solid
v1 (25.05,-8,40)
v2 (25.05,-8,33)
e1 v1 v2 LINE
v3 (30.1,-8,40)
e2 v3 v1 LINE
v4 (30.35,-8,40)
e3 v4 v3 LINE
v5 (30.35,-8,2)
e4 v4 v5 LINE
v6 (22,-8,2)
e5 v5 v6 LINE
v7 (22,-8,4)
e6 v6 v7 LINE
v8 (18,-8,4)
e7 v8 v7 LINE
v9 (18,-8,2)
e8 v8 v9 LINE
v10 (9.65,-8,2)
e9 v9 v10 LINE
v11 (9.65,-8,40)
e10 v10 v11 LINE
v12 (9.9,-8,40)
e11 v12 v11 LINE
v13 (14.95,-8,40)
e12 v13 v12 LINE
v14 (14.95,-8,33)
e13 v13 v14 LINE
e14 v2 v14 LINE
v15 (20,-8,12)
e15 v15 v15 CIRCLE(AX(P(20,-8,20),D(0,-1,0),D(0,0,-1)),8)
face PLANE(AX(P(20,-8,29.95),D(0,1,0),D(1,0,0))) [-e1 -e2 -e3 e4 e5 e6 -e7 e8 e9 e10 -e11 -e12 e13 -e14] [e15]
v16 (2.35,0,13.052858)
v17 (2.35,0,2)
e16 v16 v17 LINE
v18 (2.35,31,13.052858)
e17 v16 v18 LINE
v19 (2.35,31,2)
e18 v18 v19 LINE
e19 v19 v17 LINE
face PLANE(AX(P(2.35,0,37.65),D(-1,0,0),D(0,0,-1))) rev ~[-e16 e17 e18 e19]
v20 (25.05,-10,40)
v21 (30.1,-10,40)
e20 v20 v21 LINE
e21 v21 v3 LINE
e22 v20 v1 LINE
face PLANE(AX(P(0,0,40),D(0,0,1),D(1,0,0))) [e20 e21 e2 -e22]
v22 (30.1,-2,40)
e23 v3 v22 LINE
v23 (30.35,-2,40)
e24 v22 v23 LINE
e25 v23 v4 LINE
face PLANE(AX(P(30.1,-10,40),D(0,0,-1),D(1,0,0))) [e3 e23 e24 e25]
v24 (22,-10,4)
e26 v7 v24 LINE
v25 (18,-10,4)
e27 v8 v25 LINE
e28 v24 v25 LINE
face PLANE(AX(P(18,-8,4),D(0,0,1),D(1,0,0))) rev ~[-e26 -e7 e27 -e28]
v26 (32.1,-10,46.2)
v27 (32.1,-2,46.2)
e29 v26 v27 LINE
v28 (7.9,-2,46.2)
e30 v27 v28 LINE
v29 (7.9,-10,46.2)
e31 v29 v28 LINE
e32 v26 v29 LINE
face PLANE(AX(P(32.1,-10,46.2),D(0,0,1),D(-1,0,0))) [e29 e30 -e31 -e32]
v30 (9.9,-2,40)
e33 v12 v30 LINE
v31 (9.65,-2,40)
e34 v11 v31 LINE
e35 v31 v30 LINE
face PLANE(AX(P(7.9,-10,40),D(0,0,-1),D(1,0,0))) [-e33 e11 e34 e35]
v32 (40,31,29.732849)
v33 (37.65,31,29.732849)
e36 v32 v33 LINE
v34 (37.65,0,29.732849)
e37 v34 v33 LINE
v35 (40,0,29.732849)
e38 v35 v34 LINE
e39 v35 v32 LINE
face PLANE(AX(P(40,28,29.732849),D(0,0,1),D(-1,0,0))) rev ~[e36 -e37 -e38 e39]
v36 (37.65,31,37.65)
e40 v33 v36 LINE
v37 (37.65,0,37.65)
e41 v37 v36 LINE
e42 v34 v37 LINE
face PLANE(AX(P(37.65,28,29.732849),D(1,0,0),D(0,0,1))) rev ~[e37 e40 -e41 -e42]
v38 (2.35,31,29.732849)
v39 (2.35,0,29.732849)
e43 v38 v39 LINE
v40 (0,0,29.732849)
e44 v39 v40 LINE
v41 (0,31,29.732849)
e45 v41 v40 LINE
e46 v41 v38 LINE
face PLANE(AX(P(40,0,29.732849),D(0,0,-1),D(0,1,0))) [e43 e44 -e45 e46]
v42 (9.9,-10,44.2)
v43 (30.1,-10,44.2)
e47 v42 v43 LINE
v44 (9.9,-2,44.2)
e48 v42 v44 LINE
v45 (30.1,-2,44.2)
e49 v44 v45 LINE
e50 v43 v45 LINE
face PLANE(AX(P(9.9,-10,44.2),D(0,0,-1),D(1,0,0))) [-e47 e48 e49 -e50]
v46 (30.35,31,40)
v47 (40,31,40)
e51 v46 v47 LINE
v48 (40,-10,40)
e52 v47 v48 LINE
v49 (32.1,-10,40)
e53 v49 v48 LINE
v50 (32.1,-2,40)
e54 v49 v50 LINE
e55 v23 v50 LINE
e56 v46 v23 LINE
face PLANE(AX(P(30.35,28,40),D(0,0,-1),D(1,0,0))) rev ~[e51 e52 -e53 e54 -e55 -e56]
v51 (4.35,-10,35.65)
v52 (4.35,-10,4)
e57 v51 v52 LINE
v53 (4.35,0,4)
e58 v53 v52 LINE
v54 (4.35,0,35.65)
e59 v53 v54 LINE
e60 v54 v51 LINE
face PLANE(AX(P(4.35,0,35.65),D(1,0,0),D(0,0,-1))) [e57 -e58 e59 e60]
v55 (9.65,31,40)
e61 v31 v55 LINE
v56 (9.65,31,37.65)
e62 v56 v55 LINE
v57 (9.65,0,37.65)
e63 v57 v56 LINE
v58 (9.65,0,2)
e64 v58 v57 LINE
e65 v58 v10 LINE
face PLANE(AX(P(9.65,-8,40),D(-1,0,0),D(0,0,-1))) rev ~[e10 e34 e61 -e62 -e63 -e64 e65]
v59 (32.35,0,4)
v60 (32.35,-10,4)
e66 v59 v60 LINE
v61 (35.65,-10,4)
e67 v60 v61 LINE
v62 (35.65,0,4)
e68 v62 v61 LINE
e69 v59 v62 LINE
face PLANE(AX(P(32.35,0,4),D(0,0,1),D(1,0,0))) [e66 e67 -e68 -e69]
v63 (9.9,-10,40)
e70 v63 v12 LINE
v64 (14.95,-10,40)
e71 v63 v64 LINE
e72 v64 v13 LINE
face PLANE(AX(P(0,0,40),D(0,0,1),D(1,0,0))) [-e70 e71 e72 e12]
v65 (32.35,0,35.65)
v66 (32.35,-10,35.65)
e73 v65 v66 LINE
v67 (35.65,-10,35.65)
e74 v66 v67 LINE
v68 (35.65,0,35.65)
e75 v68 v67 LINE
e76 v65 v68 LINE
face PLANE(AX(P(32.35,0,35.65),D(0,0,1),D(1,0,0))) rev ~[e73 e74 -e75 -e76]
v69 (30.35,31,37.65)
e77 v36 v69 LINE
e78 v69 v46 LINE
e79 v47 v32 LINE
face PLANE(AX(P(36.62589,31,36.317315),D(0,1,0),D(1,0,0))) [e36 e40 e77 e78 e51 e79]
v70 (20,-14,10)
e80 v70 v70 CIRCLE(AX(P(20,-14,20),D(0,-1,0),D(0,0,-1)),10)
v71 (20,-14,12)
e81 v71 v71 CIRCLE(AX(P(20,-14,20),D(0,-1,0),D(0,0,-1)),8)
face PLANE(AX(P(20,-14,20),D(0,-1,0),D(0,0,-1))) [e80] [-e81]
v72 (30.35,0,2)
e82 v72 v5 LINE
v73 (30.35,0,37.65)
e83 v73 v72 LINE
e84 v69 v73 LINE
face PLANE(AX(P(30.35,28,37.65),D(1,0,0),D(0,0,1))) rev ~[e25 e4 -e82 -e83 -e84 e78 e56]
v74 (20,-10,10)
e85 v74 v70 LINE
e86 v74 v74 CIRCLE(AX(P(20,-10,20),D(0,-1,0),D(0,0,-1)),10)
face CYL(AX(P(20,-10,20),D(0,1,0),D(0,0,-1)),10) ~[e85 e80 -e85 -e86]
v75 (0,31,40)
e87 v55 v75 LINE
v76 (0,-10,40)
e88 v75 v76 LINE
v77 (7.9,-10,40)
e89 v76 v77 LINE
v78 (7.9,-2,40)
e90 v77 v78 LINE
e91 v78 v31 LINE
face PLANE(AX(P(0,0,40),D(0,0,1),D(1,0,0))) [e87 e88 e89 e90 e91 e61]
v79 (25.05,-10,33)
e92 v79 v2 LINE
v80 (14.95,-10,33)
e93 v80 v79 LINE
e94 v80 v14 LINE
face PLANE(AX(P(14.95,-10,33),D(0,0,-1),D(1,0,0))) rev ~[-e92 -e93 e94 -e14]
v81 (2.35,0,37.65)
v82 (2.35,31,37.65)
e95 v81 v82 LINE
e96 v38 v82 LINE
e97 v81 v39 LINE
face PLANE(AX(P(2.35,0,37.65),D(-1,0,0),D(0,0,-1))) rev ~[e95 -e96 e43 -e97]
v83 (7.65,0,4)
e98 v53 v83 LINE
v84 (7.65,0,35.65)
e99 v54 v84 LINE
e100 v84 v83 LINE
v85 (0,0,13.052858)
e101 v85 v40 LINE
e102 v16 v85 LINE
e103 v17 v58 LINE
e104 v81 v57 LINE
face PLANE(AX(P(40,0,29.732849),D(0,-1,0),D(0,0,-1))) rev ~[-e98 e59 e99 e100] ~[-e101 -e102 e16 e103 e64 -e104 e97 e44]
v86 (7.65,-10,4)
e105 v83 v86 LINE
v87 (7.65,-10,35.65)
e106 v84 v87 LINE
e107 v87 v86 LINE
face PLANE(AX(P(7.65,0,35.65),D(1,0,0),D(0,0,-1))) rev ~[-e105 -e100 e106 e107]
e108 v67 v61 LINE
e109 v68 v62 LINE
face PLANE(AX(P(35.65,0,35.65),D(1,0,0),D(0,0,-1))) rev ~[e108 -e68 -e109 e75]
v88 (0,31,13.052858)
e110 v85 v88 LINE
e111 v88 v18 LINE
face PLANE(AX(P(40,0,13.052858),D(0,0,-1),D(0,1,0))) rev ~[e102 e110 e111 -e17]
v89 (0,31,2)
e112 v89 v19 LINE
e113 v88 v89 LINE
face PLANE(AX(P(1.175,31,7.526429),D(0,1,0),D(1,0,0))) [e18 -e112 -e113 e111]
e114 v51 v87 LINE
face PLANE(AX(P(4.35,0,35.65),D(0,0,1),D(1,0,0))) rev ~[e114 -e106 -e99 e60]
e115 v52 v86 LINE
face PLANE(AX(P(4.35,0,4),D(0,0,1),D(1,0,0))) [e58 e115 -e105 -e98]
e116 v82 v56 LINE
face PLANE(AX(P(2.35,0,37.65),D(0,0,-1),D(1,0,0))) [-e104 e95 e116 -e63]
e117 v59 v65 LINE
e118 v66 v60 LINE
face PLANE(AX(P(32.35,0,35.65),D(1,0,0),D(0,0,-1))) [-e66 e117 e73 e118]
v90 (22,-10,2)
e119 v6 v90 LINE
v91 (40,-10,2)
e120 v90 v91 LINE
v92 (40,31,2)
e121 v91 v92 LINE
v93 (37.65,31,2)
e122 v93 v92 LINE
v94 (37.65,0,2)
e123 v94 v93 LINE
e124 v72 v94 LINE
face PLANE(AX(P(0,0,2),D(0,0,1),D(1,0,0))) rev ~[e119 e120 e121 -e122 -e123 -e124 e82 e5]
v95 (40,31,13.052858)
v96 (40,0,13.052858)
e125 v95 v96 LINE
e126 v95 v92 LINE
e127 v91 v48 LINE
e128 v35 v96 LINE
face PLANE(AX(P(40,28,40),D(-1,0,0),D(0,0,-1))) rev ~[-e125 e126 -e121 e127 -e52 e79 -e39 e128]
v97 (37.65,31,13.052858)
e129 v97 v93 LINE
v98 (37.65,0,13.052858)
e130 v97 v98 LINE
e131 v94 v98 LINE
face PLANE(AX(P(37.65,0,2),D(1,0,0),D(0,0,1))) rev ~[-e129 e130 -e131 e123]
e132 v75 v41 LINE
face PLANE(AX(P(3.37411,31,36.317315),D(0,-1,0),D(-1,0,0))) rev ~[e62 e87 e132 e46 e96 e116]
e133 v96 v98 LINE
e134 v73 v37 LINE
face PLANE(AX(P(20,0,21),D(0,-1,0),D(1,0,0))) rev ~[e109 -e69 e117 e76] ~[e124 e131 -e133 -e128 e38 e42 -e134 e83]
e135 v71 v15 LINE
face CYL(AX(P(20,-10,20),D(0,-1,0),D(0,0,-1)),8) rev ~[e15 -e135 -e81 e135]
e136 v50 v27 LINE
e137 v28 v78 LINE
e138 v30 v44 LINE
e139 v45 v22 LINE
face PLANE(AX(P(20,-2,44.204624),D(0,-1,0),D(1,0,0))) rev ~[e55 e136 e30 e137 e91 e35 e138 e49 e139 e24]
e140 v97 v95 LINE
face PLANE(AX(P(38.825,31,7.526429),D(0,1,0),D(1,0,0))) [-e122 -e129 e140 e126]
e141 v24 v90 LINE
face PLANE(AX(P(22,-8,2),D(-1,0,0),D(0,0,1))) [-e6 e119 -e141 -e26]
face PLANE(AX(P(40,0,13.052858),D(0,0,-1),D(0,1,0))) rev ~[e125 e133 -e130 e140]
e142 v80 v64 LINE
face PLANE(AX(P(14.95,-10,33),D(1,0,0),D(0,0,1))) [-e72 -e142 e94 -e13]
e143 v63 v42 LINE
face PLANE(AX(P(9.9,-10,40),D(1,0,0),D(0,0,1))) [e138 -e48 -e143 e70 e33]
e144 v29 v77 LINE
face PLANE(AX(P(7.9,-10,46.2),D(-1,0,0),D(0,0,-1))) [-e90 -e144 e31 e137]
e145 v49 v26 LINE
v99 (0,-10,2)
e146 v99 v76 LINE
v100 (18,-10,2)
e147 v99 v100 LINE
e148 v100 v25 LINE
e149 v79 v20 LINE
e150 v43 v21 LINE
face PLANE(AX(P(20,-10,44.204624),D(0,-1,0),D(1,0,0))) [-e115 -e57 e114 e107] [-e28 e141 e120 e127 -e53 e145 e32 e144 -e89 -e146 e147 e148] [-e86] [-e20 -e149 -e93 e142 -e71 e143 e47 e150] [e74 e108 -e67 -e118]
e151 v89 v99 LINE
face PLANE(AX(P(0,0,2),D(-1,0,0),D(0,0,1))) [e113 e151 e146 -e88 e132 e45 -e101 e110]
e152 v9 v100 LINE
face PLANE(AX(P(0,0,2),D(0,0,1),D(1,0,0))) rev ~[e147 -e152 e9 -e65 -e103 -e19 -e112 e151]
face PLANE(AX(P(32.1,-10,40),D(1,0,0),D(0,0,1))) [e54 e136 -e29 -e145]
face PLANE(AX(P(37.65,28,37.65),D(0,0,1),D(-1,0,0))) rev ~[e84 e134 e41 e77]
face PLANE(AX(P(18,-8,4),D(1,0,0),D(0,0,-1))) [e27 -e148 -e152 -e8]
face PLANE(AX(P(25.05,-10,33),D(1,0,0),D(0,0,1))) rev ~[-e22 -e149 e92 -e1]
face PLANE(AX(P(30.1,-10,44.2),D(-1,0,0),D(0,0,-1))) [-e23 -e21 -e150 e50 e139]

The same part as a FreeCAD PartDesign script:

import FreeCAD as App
import Part
import Sketcher
from FreeCAD import Vector
Q = App.Units.Quantity

doc = App.newDocument("Part")
body = doc.addObject("PartDesign::Body", "Body")

# Sketch on XZ plane
sketch1 = doc.addObject("Sketcher::SketchObject", "Sketch")
body.addObject(sketch1)
sketch1.AttachmentSupport = (doc.XZ_Plane, [""])
sketch1.MapMode = "FlatFace"
sketch1.addGeometry([
    Part.LineSegment(Vector(40, 40, 0), Vector(40, 2, 0)),  # 0
    Part.LineSegment(Vector(40, 2, 0), Vector(37.6, 2, 0)),  # 1
    Part.LineSegment(Vector(37.6, 2, 0), Vector(37.6, 37.6, 0)),  # 2
    Part.LineSegment(Vector(37.6, 37.6, 0), Vector(2.4, 37.6, 0)),  # 3
    Part.LineSegment(Vector(2.4, 37.6, 0), Vector(2.4, 2, 0)),  # 4
    Part.LineSegment(Vector(2.4, 2, 0), Vector(0, 2, 0)),  # 5
    Part.LineSegment(Vector(0, 2, 0), Vector(0, 40, 0)),  # 6
    Part.LineSegment(Vector(0, 40, 0), Vector(40, 40, 0)),  # 7
], False)
sketch1.addConstraint([
    Sketcher.Constraint("Coincident", 0, 2, 1, 1),
    Sketcher.Constraint("Coincident", 1, 2, 2, 1),
    Sketcher.Constraint("Coincident", 2, 2, 3, 1),
    Sketcher.Constraint("Coincident", 3, 2, 4, 1),
    Sketcher.Constraint("Coincident", 4, 2, 5, 1),
    Sketcher.Constraint("Coincident", 5, 2, 6, 1),
    Sketcher.Constraint("Coincident", 6, 2, 7, 1),
    Sketcher.Constraint("Coincident", 7, 2, 0, 1),
    Sketcher.Constraint("Vertical", 0),
    Sketcher.Constraint("Horizontal", 1),
    Sketcher.Constraint("Vertical", 2),
    Sketcher.Constraint("Horizontal", 3),
    Sketcher.Constraint("Vertical", 4),
    Sketcher.Constraint("Horizontal", 5),
    Sketcher.Constraint("Vertical", 6),
    Sketcher.Constraint("Horizontal", 7),
    Sketcher.Constraint("PointOnObject", 5, 2, -2),
    Sketcher.Constraint("Horizontal", 1, 2, 4, 2),
    Sketcher.Constraint("Equal", 1, 5),
    Sketcher.Constraint("DistanceX", 7, 1, 7, 2, Q("40 mm")),
    Sketcher.Constraint("DistanceY", 0, 2, 0, 1, Q("38 mm")),
    Sketcher.Constraint("DistanceX", 3, 2, 3, 1, Q("35.3 mm")),
    Sketcher.Constraint("DistanceY", -1, 1, 0, 2, Q("2 mm")),
    Sketcher.Constraint("DistanceY", 2, 1, 2, 2, Q("35.65 mm")),
])
pad1 = doc.addObject("PartDesign::Pad", "Pad")
body.addObject(pad1)
pad1.Profile = sketch1
pad1.Length = 28
pad1.Reversed = True

# Sketch on XZ plane
sketch2 = doc.addObject("Sketcher::SketchObject", "Sketch001")
body.addObject(sketch2)
sketch2.AttachmentSupport = (doc.XZ_Plane, [""])
sketch2.MapMode = "FlatFace"
sketch2.addGeometry([
    Part.LineSegment(Vector(0, 40, 0), Vector(0, 2, 0)),
    Part.LineSegment(Vector(0, 2, 0), Vector(40, 2, 0)),
    Part.LineSegment(Vector(40, 2, 0), Vector(40, 40, 0)),
    Part.LineSegment(Vector(40, 40, 0), Vector(0, 40, 0)),
], False)
sketch2.addConstraint([
    Sketcher.Constraint("Coincident", 0, 2, 1, 1),
    Sketcher.Constraint("Coincident", 1, 2, 2, 1),
    Sketcher.Constraint("Coincident", 2, 2, 3, 1),
    Sketcher.Constraint("Coincident", 3, 2, 0, 1),
    Sketcher.Constraint("Vertical", 0),
    Sketcher.Constraint("Horizontal", 1),
    Sketcher.Constraint("Vertical", 2),
    Sketcher.Constraint("Horizontal", 3),
    Sketcher.Constraint("PointOnObject", 0, 2, -2),
    Sketcher.Constraint("DistanceX", 1, 1, 1, 2, Q("40 mm")),
    Sketcher.Constraint("DistanceY", 0, 2, 0, 1, Q("38 mm")),
    Sketcher.Constraint("DistanceY", -1, 1, 0, 2, Q("2 mm")),
])
pad2 = doc.addObject("PartDesign::Pad", "Pad001")
body.addObject(pad2)
pad2.Profile = sketch2
pad2.Length = 10

# Sketch on XZ plane
sketch3 = doc.addObject("Sketcher::SketchObject", "Sketch002")
body.addObject(sketch3)
sketch3.AttachmentSupport = (doc.XZ_Plane, [""])
sketch3.MapMode = "FlatFace"
sketch3.addGeometry([
    Part.LineSegment(Vector(10, 58, 0), Vector(30, 58, 0)),
    Part.LineSegment(Vector(30, 58, 0), Vector(30, 2, 0)),
    Part.LineSegment(Vector(30, 2, 0), Vector(10, 2, 0)),
    Part.LineSegment(Vector(10, 2, 0), Vector(10, 58, 0)),
], False)
sketch3.addConstraint([
    Sketcher.Constraint("Coincident", 0, 2, 1, 1),
    Sketcher.Constraint("Coincident", 1, 2, 2, 1),
    Sketcher.Constraint("Coincident", 2, 2, 3, 1),
    Sketcher.Constraint("Coincident", 3, 2, 0, 1),
    Sketcher.Constraint("Horizontal", 0),
    Sketcher.Constraint("Vertical", 1),
    Sketcher.Constraint("Horizontal", 2),
    Sketcher.Constraint("Vertical", 3),
    Sketcher.Constraint("DistanceX", 0, 1, 0, 2, Q("20.7 mm")),
    Sketcher.Constraint("DistanceY", 1, 2, 1, 1, Q("55.9 mm")),
    Sketcher.Constraint("DistanceY", -1, 1, 1, 2, Q("2 mm")),
    Sketcher.Constraint("DistanceX", -1, 1, 0, 2, Q("30.35 mm")),
])
pocket1 = doc.addObject("PartDesign::Pocket", "Pocket")
body.addObject(pocket1)
pocket1.Profile = sketch3
pocket1.Length = 8
pocket1.Reversed = True

# Sketch on XZ plane
sketch4 = doc.addObject("Sketcher::SketchObject", "Sketch003")
body.addObject(sketch4)
sketch4.AttachmentSupport = (doc.XZ_Plane, [""])
sketch4.MapMode = "FlatFace"
sketch4.AttachmentOffset = App.Placement(Vector(0, 0, 8), App.Rotation())
sketch4.addGeometry([
    Part.LineSegment(Vector(10, 2, 0), Vector(10, 40, 0)),
    Part.LineSegment(Vector(10, 40, 0), Vector(30, 40, 0)),
    Part.LineSegment(Vector(30, 40, 0), Vector(30, 2, 0)),
    Part.LineSegment(Vector(30, 2, 0), Vector(10, 2, 0)),
], False)
sketch4.addConstraint([
    Sketcher.Constraint("Coincident", 0, 2, 1, 1),
    Sketcher.Constraint("Coincident", 1, 2, 2, 1),
    Sketcher.Constraint("Coincident", 2, 2, 3, 1),
    Sketcher.Constraint("Coincident", 3, 2, 0, 1),
    Sketcher.Constraint("Vertical", 0),
    Sketcher.Constraint("Horizontal", 1),
    Sketcher.Constraint("Vertical", 2),
    Sketcher.Constraint("Horizontal", 3),
    Sketcher.Constraint("DistanceY", 0, 1, 0, 2, Q("38 mm")),
    Sketcher.Constraint("DistanceX", 1, 1, 1, 2, Q("20.7 mm")),
    Sketcher.Constraint("DistanceY", -1, 1, 0, 2, Q("40 mm")),
    Sketcher.Constraint("DistanceX", -1, 1, 0, 2, Q("9.65 mm")),
])
pocket2 = doc.addObject("PartDesign::Pocket", "Pocket001")
body.addObject(pocket2)
pocket2.Profile = sketch4
pocket2.Length = 43

# Sketch on XZ plane
sketch5 = doc.addObject("Sketcher::SketchObject", "Sketch004")
body.addObject(sketch5)
sketch5.AttachmentSupport = (doc.XZ_Plane, [""])
sketch5.MapMode = "FlatFace"
sketch5.AttachmentOffset = App.Placement(Vector(0, 0, 8), App.Rotation())
sketch5.addGeometry([
    Part.LineSegment(Vector(18, 4, 0), Vector(22, 4, 0)),
    Part.LineSegment(Vector(22, 4, 0), Vector(22, 2, 0)),
    Part.LineSegment(Vector(22, 2, 0), Vector(18, 2, 0)),
    Part.LineSegment(Vector(18, 2, 0), Vector(18, 4, 0)),
], False)
sketch5.addConstraint([
    Sketcher.Constraint("Coincident", 0, 2, 1, 1),
    Sketcher.Constraint("Coincident", 1, 2, 2, 1),
    Sketcher.Constraint("Coincident", 2, 2, 3, 1),
    Sketcher.Constraint("Coincident", 3, 2, 0, 1),
    Sketcher.Constraint("Horizontal", 0),
    Sketcher.Constraint("Vertical", 1),
    Sketcher.Constraint("Horizontal", 2),
    Sketcher.Constraint("Vertical", 3),
    Sketcher.Constraint("DistanceX", 0, 1, 0, 2, Q("4 mm")),
    Sketcher.Constraint("DistanceY", 1, 2, 1, 1, Q("2 mm")),
    Sketcher.Constraint("DistanceX", -1, 1, 0, 2, Q("22 mm")),
    Sketcher.Constraint("DistanceY", -1, 1, 0, 2, Q("4 mm")),
])
pocket3 = doc.addObject("PartDesign::Pocket", "Pocket002")
body.addObject(pocket3)
pocket3.Profile = sketch5
pocket3.Length = 43
pocket3.Reversed = True

# Sketch on XZ plane
sketch6 = doc.addObject("Sketcher::SketchObject", "Sketch005")
body.addObject(sketch6)
sketch6.AttachmentSupport = (doc.XZ_Plane, [""])
sketch6.MapMode = "FlatFace"
sketch6.AttachmentOffset = App.Placement(Vector(0, 0, 10), App.Rotation())
sketch6.addGeometry([
    Part.LineSegment(Vector(30.1, 44.2, 0), Vector(30.1, 40, 0)),  # 0
    Part.LineSegment(Vector(30.1, 40, 0), Vector(32.1, 40, 0)),  # 1
    Part.LineSegment(Vector(32.1, 40, 0), Vector(32.1, 46.2, 0)),  # 2
    Part.LineSegment(Vector(32.1, 46.2, 0), Vector(7.9, 46.2, 0)),  # 3
    Part.LineSegment(Vector(7.9, 46.2, 0), Vector(7.9, 40, 0)),  # 4
    Part.LineSegment(Vector(7.9, 40, 0), Vector(9.9, 40, 0)),  # 5
    Part.LineSegment(Vector(9.9, 40, 0), Vector(9.9, 44.2, 0)),  # 6
    Part.LineSegment(Vector(9.9, 44.2, 0), Vector(30.1, 44.2, 0)),  # 7
], False)
sketch6.addConstraint([
    Sketcher.Constraint("Coincident", 0, 2, 1, 1),
    Sketcher.Constraint("Coincident", 1, 2, 2, 1),
    Sketcher.Constraint("Coincident", 2, 2, 3, 1),
    Sketcher.Constraint("Coincident", 3, 2, 4, 1),
    Sketcher.Constraint("Coincident", 4, 2, 5, 1),
    Sketcher.Constraint("Coincident", 5, 2, 6, 1),
    Sketcher.Constraint("Coincident", 6, 2, 7, 1),
    Sketcher.Constraint("Coincident", 7, 2, 0, 1),
    Sketcher.Constraint("Vertical", 0),
    Sketcher.Constraint("Horizontal", 1),
    Sketcher.Constraint("Vertical", 2),
    Sketcher.Constraint("Horizontal", 3),
    Sketcher.Constraint("Vertical", 4),
    Sketcher.Constraint("Horizontal", 5),
    Sketcher.Constraint("Vertical", 6),
    Sketcher.Constraint("Horizontal", 7),
    Sketcher.Constraint("Horizontal", 1, 2, 4, 2),
    Sketcher.Constraint("Equal", 1, 5),
    Sketcher.Constraint("DistanceX", 1, 1, 1, 2, Q("2 mm")),
    Sketcher.Constraint("DistanceX", 3, 2, 3, 1, Q("24.2 mm")),
    Sketcher.Constraint("DistanceY", 0, 2, 0, 1, Q("4.2 mm")),
    Sketcher.Constraint("DistanceY", 2, 1, 2, 2, Q("6.2 mm")),
    Sketcher.Constraint("DistanceY", -1, 1, 0, 2, Q("40 mm")),
    Sketcher.Constraint("DistanceX", -1, 1, 0, 2, Q("30.1 mm")),
])
pad3 = doc.addObject("PartDesign::Pad", "Pad002")
body.addObject(pad3)
pad3.Profile = sketch6
pad3.Length = 8
pad3.Reversed = True

# Sketch on XZ plane
sketch7 = doc.addObject("Sketcher::SketchObject", "Sketch006")
body.addObject(sketch7)
sketch7.AttachmentSupport = (doc.XZ_Plane, [""])
sketch7.MapMode = "FlatFace"
sketch7.AttachmentOffset = App.Placement(Vector(0, 0, 10), App.Rotation())
sketch7.addGeometry(Part.Circle(Vector(20, 20, 0), Vector(0, 0, 1), 10), False)
sketch7.addConstraint([
    Sketcher.Constraint("Diameter", 0, Q("20 mm")),
    Sketcher.Constraint("DistanceX", -1, 1, 0, 3, Q("20 mm")),
    Sketcher.Constraint("DistanceY", -1, 1, 0, 3, Q("20 mm")),
])
pad4 = doc.addObject("PartDesign::Pad", "Pad003")
body.addObject(pad4)
pad4.Profile = sketch7
pad4.Length = 4

# Sketch on XZ plane
sketch8 = doc.addObject("Sketcher::SketchObject", "Sketch007")
body.addObject(sketch8)
sketch8.AttachmentSupport = (doc.XZ_Plane, [""])
sketch8.MapMode = "FlatFace"
sketch8.AttachmentOffset = App.Placement(Vector(0, 0, 14), App.Rotation())
sketch8.addGeometry(Part.Circle(Vector(20, 20, 0), Vector(0, 0, 1), 8), False)
sketch8.addConstraint([
    Sketcher.Constraint("Diameter", 0, Q("16 mm")),
    Sketcher.Constraint("DistanceX", -1, 1, 0, 3, Q("20 mm")),
    Sketcher.Constraint("DistanceY", -1, 1, 0, 3, Q("20 mm")),
])
pocket4 = doc.addObject("PartDesign::Pocket", "Pocket003")
body.addObject(pocket4)
pocket4.Profile = sketch8
pocket4.Length = 4

# Sketch on XZ plane
sketch9 = doc.addObject("Sketcher::SketchObject", "Sketch008")
body.addObject(sketch9)
sketch9.AttachmentSupport = (doc.XZ_Plane, [""])
sketch9.MapMode = "FlatFace"
sketch9.AttachmentOffset = App.Placement(Vector(0, 0, 10), App.Rotation())
sketch9.addGeometry(Part.Circle(Vector(20, 20, 0), Vector(0, 0, 1), 8), False)
sketch9.addConstraint([
    Sketcher.Constraint("Diameter", 0, Q("16 mm")),
    Sketcher.Constraint("DistanceX", -1, 1, 0, 3, Q("20 mm")),
    Sketcher.Constraint("DistanceY", -1, 1, 0, 3, Q("20 mm")),
])
pocket5 = doc.addObject("PartDesign::Pocket", "Pocket004")
body.addObject(pocket5)
pocket5.Profile = sketch9
pocket5.Length = 10

# Sketch on XZ plane
sketch10 = doc.addObject("Sketcher::SketchObject", "Sketch009")
body.addObject(sketch10)
sketch10.AttachmentSupport = (doc.XZ_Plane, [""])
sketch10.MapMode = "FlatFace"
sketch10.addGeometry([
    Part.LineSegment(Vector(4.3, 4, 0), Vector(4.3, 35.6, 0)),
    Part.LineSegment(Vector(4.3, 35.6, 0), Vector(7.7, 35.6, 0)),
    Part.LineSegment(Vector(7.7, 35.6, 0), Vector(7.7, 4, 0)),
    Part.LineSegment(Vector(7.7, 4, 0), Vector(4.3, 4, 0)),
], False)
sketch10.addConstraint([
    Sketcher.Constraint("Coincident", 0, 2, 1, 1),
    Sketcher.Constraint("Coincident", 1, 2, 2, 1),
    Sketcher.Constraint("Coincident", 2, 2, 3, 1),
    Sketcher.Constraint("Coincident", 3, 2, 0, 1),
    Sketcher.Constraint("Vertical", 0),
    Sketcher.Constraint("Horizontal", 1),
    Sketcher.Constraint("Vertical", 2),
    Sketcher.Constraint("Horizontal", 3),
    Sketcher.Constraint("DistanceX", 1, 1, 1, 2, Q("3.3 mm")),
    Sketcher.Constraint("DistanceY", -1, 1, 2, 2, Q("4 mm")),
    Sketcher.Constraint("DistanceY", 0, 1, 0, 2, Q("31.65 mm")),
    Sketcher.Constraint("DistanceX", -1, 1, 0, 2, Q("4.35 mm")),
])
pocket6 = doc.addObject("PartDesign::Pocket", "Pocket005")
body.addObject(pocket6)
pocket6.Profile = sketch10
pocket6.Length = 10
pocket6.Reversed = True

# Sketch on XZ plane
sketch11 = doc.addObject("Sketcher::SketchObject", "Sketch010")
body.addObject(sketch11)
sketch11.AttachmentSupport = (doc.XZ_Plane, [""])
sketch11.MapMode = "FlatFace"
sketch11.addGeometry([
    Part.LineSegment(Vector(32.4, 4, 0), Vector(32.4, 35.6, 0)),
    Part.LineSegment(Vector(32.4, 35.6, 0), Vector(35.6, 35.6, 0)),
    Part.LineSegment(Vector(35.6, 35.6, 0), Vector(35.6, 4, 0)),
    Part.LineSegment(Vector(35.6, 4, 0), Vector(32.4, 4, 0)),
], False)
sketch11.addConstraint([
    Sketcher.Constraint("Coincident", 0, 2, 1, 1),
    Sketcher.Constraint("Coincident", 1, 2, 2, 1),
    Sketcher.Constraint("Coincident", 2, 2, 3, 1),
    Sketcher.Constraint("Coincident", 3, 2, 0, 1),
    Sketcher.Constraint("Vertical", 0),
    Sketcher.Constraint("Horizontal", 1),
    Sketcher.Constraint("Vertical", 2),
    Sketcher.Constraint("Horizontal", 3),
    Sketcher.Constraint("DistanceX", 1, 1, 1, 2, Q("3.3 mm")),
    Sketcher.Constraint("DistanceY", -1, 1, 2, 2, Q("4 mm")),
    Sketcher.Constraint("DistanceY", 0, 1, 0, 2, Q("31.65 mm")),
    Sketcher.Constraint("DistanceX", -1, 1, 0, 2, Q("32.35 mm")),
])
pocket7 = doc.addObject("PartDesign::Pocket", "Pocket006")
body.addObject(pocket7)
pocket7.Profile = sketch11
pocket7.Length = 10
pocket7.Reversed = True

# Sketch on YZ plane
sketch12 = doc.addObject("Sketcher::SketchObject", "Sketch011")
body.addObject(sketch12)
sketch12.AttachmentSupport = (doc.YZ_Plane, [""])
sketch12.MapMode = "FlatFace"
sketch12.AttachmentOffset = App.Placement(Vector(0, 0, 40), App.Rotation())
sketch12.addGeometry([
    Part.LineSegment(Vector(28, 30, 0), Vector(0, 30, 0)),
    Part.LineSegment(Vector(0, 30, 0), Vector(0, 13, 0)),
    Part.LineSegment(Vector(0, 13, 0), Vector(28, 13, 0)),
    Part.LineSegment(Vector(28, 13, 0), Vector(28, 30, 0)),
], False)
sketch12.addConstraint([
    Sketcher.Constraint("Coincident", 0, 2, 1, 1),
    Sketcher.Constraint("Coincident", 1, 2, 2, 1),
    Sketcher.Constraint("Coincident", 2, 2, 3, 1),
    Sketcher.Constraint("Coincident", 3, 2, 0, 1),
    Sketcher.Constraint("Horizontal", 0),
    Sketcher.Constraint("Vertical", 1),
    Sketcher.Constraint("Horizontal", 2),
    Sketcher.Constraint("Vertical", 3),
    Sketcher.Constraint("PointOnObject", 0, 2, -2),
    Sketcher.Constraint("DistanceX", 0, 2, 0, 1, Q("28 mm")),
    Sketcher.Constraint("DistanceY", 1, 2, 1, 1, Q("16.679991 mm")),
    Sketcher.Constraint("DistanceY", -1, 1, 0, 2, Q("29.732849 mm")),
])
pocket8 = doc.addObject("PartDesign::Pocket", "Pocket007")
body.addObject(pocket8)
pocket8.Profile = sketch12
pocket8.Length = 253

# Sketch on XZ plane
sketch13 = doc.addObject("Sketcher::SketchObject", "Sketch012")
body.addObject(sketch13)
sketch13.AttachmentSupport = (doc.XZ_Plane, [""])
sketch13.MapMode = "FlatFace"
sketch13.AttachmentOffset = App.Placement(Vector(0, 0, 10), App.Rotation())
sketch13.addGeometry([
    Part.LineSegment(Vector(15, 40, 0), Vector(15, 33, 0)),
    Part.LineSegment(Vector(15, 33, 0), Vector(25, 33, 0)),
    Part.LineSegment(Vector(25, 33, 0), Vector(25, 40, 0)),
    Part.LineSegment(Vector(25, 40, 0), Vector(15, 40, 0)),
], False)
sketch13.addConstraint([
    Sketcher.Constraint("Coincident", 0, 2, 1, 1),
    Sketcher.Constraint("Coincident", 1, 2, 2, 1),
    Sketcher.Constraint("Coincident", 2, 2, 3, 1),
    Sketcher.Constraint("Coincident", 3, 2, 0, 1),
    Sketcher.Constraint("Vertical", 0),
    Sketcher.Constraint("Horizontal", 1),
    Sketcher.Constraint("Vertical", 2),
    Sketcher.Constraint("Horizontal", 3),
    Sketcher.Constraint("DistanceY", 0, 2, 0, 1, Q("7 mm")),
    Sketcher.Constraint("DistanceX", 1, 1, 1, 2, Q("10.1 mm")),
    Sketcher.Constraint("DistanceY", -1, 1, 0, 2, Q("33 mm")),
    Sketcher.Constraint("DistanceX", -1, 1, 0, 2, Q("14.95 mm")),
])
pocket9 = doc.addObject("PartDesign::Pocket", "Pocket008")
body.addObject(pocket9)
pocket9.Profile = sketch13
pocket9.Length = 13

# Sketch on XZ plane
sketch14 = doc.addObject("Sketcher::SketchObject", "Sketch013")
body.addObject(sketch14)
sketch14.AttachmentSupport = (doc.XZ_Plane, [""])
sketch14.MapMode = "FlatFace"
sketch14.AttachmentOffset = App.Placement(Vector(0, 0, -28), App.Rotation())
sketch14.addGeometry([
    Part.LineSegment(Vector(40, 40, 0), Vector(40, 29.7, 0)),  # 0
    Part.LineSegment(Vector(40, 29.7, 0), Vector(37.6, 29.7, 0)),  # 1
    Part.LineSegment(Vector(37.6, 29.7, 0), Vector(37.6, 37.6, 0)),  # 2
    Part.LineSegment(Vector(37.6, 37.6, 0), Vector(30.4, 37.6, 0)),  # 3
    Part.LineSegment(Vector(30.4, 37.6, 0), Vector(30.4, 40, 0)),  # 4
    Part.LineSegment(Vector(30.4, 40, 0), Vector(40, 40, 0)),  # 5
    Part.LineSegment(Vector(0, 40, 0), Vector(9.7, 40, 0)),  # 6
    Part.LineSegment(Vector(9.7, 40, 0), Vector(9.7, 37.6, 0)),  # 7
    Part.LineSegment(Vector(9.7, 37.6, 0), Vector(2.4, 37.6, 0)),  # 8
    Part.LineSegment(Vector(2.4, 37.6, 0), Vector(2.4, 29.7, 0)),  # 9
    Part.LineSegment(Vector(2.4, 29.7, 0), Vector(0, 29.7, 0)),  # 10
    Part.LineSegment(Vector(0, 29.7, 0), Vector(0, 40, 0)),  # 11
    Part.LineSegment(Vector(0, 2, 0), Vector(0, 13.1, 0)),  # 12
    Part.LineSegment(Vector(0, 13.1, 0), Vector(2.4, 13.1, 0)),  # 13
    Part.LineSegment(Vector(2.4, 13.1, 0), Vector(2.4, 2, 0)),  # 14
    Part.LineSegment(Vector(2.4, 2, 0), Vector(0, 2, 0)),  # 15
    Part.LineSegment(Vector(37.6, 2, 0), Vector(37.6, 13.1, 0)),  # 16
    Part.LineSegment(Vector(37.6, 13.1, 0), Vector(40, 13.1, 0)),  # 17
    Part.LineSegment(Vector(40, 13.1, 0), Vector(40, 2, 0)),  # 18
    Part.LineSegment(Vector(40, 2, 0), Vector(37.6, 2, 0)),  # 19
], False)
sketch14.addConstraint([
    Sketcher.Constraint("Coincident", 0, 2, 1, 1),
    Sketcher.Constraint("Coincident", 1, 2, 2, 1),
    Sketcher.Constraint("Coincident", 2, 2, 3, 1),
    Sketcher.Constraint("Coincident", 3, 2, 4, 1),
    Sketcher.Constraint("Coincident", 4, 2, 5, 1),
    Sketcher.Constraint("Coincident", 5, 2, 0, 1),
    Sketcher.Constraint("Coincident", 6, 2, 7, 1),
    Sketcher.Constraint("Coincident", 7, 2, 8, 1),
    Sketcher.Constraint("Coincident", 8, 2, 9, 1),
    Sketcher.Constraint("Coincident", 9, 2, 10, 1),
    Sketcher.Constraint("Coincident", 10, 2, 11, 1),
    Sketcher.Constraint("Coincident", 11, 2, 6, 1),
    Sketcher.Constraint("Coincident", 12, 2, 13, 1),
    Sketcher.Constraint("Coincident", 13, 2, 14, 1),
    Sketcher.Constraint("Coincident", 14, 2, 15, 1),
    Sketcher.Constraint("Coincident", 15, 2, 12, 1),
    Sketcher.Constraint("Coincident", 16, 2, 17, 1),
    Sketcher.Constraint("Coincident", 17, 2, 18, 1),
    Sketcher.Constraint("Coincident", 18, 2, 19, 1),
    Sketcher.Constraint("Coincident", 19, 2, 16, 1),
    Sketcher.Constraint("Vertical", 0),
    Sketcher.Constraint("Horizontal", 1),
    Sketcher.Constraint("Vertical", 2),
    Sketcher.Constraint("Horizontal", 3),
    Sketcher.Constraint("Vertical", 4),
    Sketcher.Constraint("Horizontal", 5),
    Sketcher.Constraint("Horizontal", 6),
    Sketcher.Constraint("Vertical", 7),
    Sketcher.Constraint("Horizontal", 8),
    Sketcher.Constraint("Vertical", 9),
    Sketcher.Constraint("Horizontal", 10),
    Sketcher.Constraint("Vertical", 11),
    Sketcher.Constraint("Vertical", 12),
    Sketcher.Constraint("Horizontal", 13),
    Sketcher.Constraint("Vertical", 14),
    Sketcher.Constraint("Horizontal", 15),
    Sketcher.Constraint("Vertical", 16),
    Sketcher.Constraint("Horizontal", 17),
    Sketcher.Constraint("Vertical", 18),
    Sketcher.Constraint("Horizontal", 19),
    Sketcher.Constraint("PointOnObject", 10, 2, -2),
    Sketcher.Constraint("PointOnObject", 12, 2, -2),
    Sketcher.Constraint("Horizontal", 5, 2, 6, 2),
    Sketcher.Constraint("Horizontal", 3, 2, 7, 2),
    Sketcher.Constraint("Horizontal", 1, 2, 9, 2),
    Sketcher.Constraint("Horizontal", 13, 2, 16, 2),
    Sketcher.Constraint("Horizontal", 15, 2, 18, 2),
    Sketcher.Constraint("Vertical", 9, 2, 13, 2),
    Sketcher.Constraint("Vertical", 2, 2, 16, 2),
    Sketcher.Constraint("Vertical", 5, 2, 17, 2),
    Sketcher.Constraint("Equal", 5, 6),
    Sketcher.Constraint("Equal", 3, 8),
    Sketcher.Constraint("Equal", 19, 4),
    Sketcher.Constraint("DistanceX", 3, 2, 3, 1, Q("7.3 mm")),
    Sketcher.Constraint("DistanceX", -1, 1, 0, 2, Q("40 mm")),
    Sketcher.Constraint("DistanceY", -1, 1, 4, 2, Q("40 mm")),
    Sketcher.Constraint("DistanceY", -1, 1, 14, 2, Q("2 mm")),
    Sketcher.Constraint("DistanceX", 6, 2, 2, 2, Q("28 mm")),
    Sketcher.Constraint("DistanceY", 0, 2, 0, 1, Q("10.267151 mm")),
    Sketcher.Constraint("DistanceY", 12, 1, 12, 2, Q("11.052858 mm")),
])
pad5 = doc.addObject("PartDesign::Pad", "Pad004")
body.addObject(pad5)
pad5.Profile = sketch14
pad5.Length = 3
pad5.Reversed = True

doc.recompute()
